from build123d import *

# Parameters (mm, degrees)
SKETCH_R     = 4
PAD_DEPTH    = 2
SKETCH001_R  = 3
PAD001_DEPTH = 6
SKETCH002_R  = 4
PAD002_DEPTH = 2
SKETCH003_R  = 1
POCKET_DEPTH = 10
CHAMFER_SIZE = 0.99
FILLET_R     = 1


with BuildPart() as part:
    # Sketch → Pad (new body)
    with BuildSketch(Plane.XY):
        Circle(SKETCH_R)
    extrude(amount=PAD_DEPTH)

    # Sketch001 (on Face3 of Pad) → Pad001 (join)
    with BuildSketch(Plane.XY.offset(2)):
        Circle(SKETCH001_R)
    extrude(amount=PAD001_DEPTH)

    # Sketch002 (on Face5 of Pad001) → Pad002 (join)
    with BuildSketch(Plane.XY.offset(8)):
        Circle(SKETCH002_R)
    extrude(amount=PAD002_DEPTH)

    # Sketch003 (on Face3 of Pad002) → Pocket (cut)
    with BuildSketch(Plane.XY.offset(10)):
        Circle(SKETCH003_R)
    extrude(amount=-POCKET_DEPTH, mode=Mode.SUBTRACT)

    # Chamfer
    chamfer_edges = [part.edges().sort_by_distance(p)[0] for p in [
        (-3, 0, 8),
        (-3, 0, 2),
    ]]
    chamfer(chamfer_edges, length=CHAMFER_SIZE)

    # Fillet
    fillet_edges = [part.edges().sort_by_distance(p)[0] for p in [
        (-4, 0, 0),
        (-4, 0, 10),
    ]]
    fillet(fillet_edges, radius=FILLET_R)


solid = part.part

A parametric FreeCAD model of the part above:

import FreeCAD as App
import Part
import Sketcher
from FreeCAD import Vector
Q = App.Units.Quantity


def edges_at(feature, points):
    """Names of the edges that pass closest to the given points."""
    edges = feature.Shape.Edges
    near = lambda p: min(range(len(edges)), key=lambda i: edges[i].distToShape(Part.Vertex(*p))[0])
    return sorted({f"Edge{near(p) + 1}" for p in points})

doc = App.newDocument("Part")
params = doc.addObject("Spreadsheet::Sheet", "Params")
for row, (alias, value) in enumerate([
    ("sketch1_diameter", "8 mm"),
    ("pad1_length", "2 mm"),
    ("sketch2_diameter", "6 mm"),
    ("pad2_length", "6 mm"),
    ("sketch3_diameter", "8 mm"),
    ("pad3_length", "2 mm"),
    ("sketch4_diameter", "2 mm"),
    ("pocket1_length", "10 mm"),
    ("chamfer_size", "0.99 mm"),
    ("fillet_radius", "1 mm"),
], start=1):
    params.set(f"A{row}", alias)
    params.set(f"B{row}", "=" + value)
    params.setAlias(f"B{row}", alias)

body = doc.addObject("PartDesign::Body", "Body")

# Sketch on XY plane
sketch1 = doc.addObject("Sketcher::SketchObject", "Sketch")
body.addObject(sketch1)
sketch1.AttachmentSupport = (doc.XY_Plane, [""])
sketch1.MapMode = "FlatFace"
sketch1.addGeometry(Part.Circle(Vector(0, 0, 0), Vector(0, 0, 1), 4), False)
sketch1.addConstraint([
    Sketcher.Constraint("Coincident", 0, 3, -1, 1),
    Sketcher.Constraint("Diameter", 0, Q("8 mm")),
])
sketch1.setExpression("Constraints[1]", "Params.sketch1_diameter")
pad1 = doc.addObject("PartDesign::Pad", "Pad")
body.addObject(pad1)
pad1.Profile = sketch1
pad1.setExpression("Length", "Params.pad1_length")

# Sketch on XY plane
sketch2 = doc.addObject("Sketcher::SketchObject", "Sketch001")
body.addObject(sketch2)
sketch2.AttachmentSupport = (doc.XY_Plane, [""])
sketch2.MapMode = "FlatFace"
sketch2.AttachmentOffset = App.Placement(Vector(0, 0, 2), App.Rotation())
sketch2.addGeometry(Part.Circle(Vector(0, 0, 0), Vector(0, 0, 1), 3), False)
sketch2.addConstraint([
    Sketcher.Constraint("Coincident", 0, 3, -1, 1),
    Sketcher.Constraint("Diameter", 0, Q("6 mm")),
])
sketch2.setExpression("Constraints[1]", "Params.sketch2_diameter")
pad2 = doc.addObject("PartDesign::Pad", "Pad001")
body.addObject(pad2)
pad2.Profile = sketch2
pad2.setExpression("Length", "Params.pad2_length")

# Sketch on XY plane
sketch3 = doc.addObject("Sketcher::SketchObject", "Sketch002")
body.addObject(sketch3)
sketch3.AttachmentSupport = (doc.XY_Plane, [""])
sketch3.MapMode = "FlatFace"
sketch3.AttachmentOffset = App.Placement(Vector(0, 0, 8), App.Rotation())
sketch3.addGeometry(Part.Circle(Vector(0, 0, 0), Vector(0, 0, 1), 4), False)
sketch3.addConstraint([
    Sketcher.Constraint("Coincident", 0, 3, -1, 1),
    Sketcher.Constraint("Diameter", 0, Q("8 mm")),
])
sketch3.setExpression("Constraints[1]", "Params.sketch3_diameter")
pad3 = doc.addObject("PartDesign::Pad", "Pad002")
body.addObject(pad3)
pad3.Profile = sketch3
pad3.setExpression("Length", "Params.pad3_length")

# Sketch on XY plane
sketch4 = doc.addObject("Sketcher::SketchObject", "Sketch003")
body.addObject(sketch4)
sketch4.AttachmentSupport = (doc.XY_Plane, [""])
sketch4.MapMode = "FlatFace"
sketch4.AttachmentOffset = App.Placement(Vector(0, 0, 10), App.Rotation())
sketch4.addGeometry(Part.Circle(Vector(0, 0, 0), Vector(0, 0, 1), 1), False)
sketch4.addConstraint([
    Sketcher.Constraint("Coincident", 0, 3, -1, 1),
    Sketcher.Constraint("Diameter", 0, Q("2 mm")),
])
sketch4.setExpression("Constraints[1]", "Params.sketch4_diameter")
pocket1 = doc.addObject("PartDesign::Pocket", "Pocket")
body.addObject(pocket1)
pocket1.Profile = sketch4
pocket1.setExpression("Length", "Params.pocket1_length")
doc.recompute()

chamfer = doc.addObject("PartDesign::Chamfer", "Chamfer")
body.addObject(chamfer)
chamfer.Base = (pocket1, edges_at(pocket1, [(-3, 0, 8), (-3, 0, 2)]))
chamfer.setExpression("Size", "Params.chamfer_size")
doc.recompute()

fillet = doc.addObject("PartDesign::Fillet", "Fillet")
body.addObject(fillet)
fillet.Base = (chamfer, edges_at(chamfer, [(-4, 0, 0), (-4, 0, 10)]))
fillet.setExpression("Radius", "Params.fillet_radius")

doc.recompute()
